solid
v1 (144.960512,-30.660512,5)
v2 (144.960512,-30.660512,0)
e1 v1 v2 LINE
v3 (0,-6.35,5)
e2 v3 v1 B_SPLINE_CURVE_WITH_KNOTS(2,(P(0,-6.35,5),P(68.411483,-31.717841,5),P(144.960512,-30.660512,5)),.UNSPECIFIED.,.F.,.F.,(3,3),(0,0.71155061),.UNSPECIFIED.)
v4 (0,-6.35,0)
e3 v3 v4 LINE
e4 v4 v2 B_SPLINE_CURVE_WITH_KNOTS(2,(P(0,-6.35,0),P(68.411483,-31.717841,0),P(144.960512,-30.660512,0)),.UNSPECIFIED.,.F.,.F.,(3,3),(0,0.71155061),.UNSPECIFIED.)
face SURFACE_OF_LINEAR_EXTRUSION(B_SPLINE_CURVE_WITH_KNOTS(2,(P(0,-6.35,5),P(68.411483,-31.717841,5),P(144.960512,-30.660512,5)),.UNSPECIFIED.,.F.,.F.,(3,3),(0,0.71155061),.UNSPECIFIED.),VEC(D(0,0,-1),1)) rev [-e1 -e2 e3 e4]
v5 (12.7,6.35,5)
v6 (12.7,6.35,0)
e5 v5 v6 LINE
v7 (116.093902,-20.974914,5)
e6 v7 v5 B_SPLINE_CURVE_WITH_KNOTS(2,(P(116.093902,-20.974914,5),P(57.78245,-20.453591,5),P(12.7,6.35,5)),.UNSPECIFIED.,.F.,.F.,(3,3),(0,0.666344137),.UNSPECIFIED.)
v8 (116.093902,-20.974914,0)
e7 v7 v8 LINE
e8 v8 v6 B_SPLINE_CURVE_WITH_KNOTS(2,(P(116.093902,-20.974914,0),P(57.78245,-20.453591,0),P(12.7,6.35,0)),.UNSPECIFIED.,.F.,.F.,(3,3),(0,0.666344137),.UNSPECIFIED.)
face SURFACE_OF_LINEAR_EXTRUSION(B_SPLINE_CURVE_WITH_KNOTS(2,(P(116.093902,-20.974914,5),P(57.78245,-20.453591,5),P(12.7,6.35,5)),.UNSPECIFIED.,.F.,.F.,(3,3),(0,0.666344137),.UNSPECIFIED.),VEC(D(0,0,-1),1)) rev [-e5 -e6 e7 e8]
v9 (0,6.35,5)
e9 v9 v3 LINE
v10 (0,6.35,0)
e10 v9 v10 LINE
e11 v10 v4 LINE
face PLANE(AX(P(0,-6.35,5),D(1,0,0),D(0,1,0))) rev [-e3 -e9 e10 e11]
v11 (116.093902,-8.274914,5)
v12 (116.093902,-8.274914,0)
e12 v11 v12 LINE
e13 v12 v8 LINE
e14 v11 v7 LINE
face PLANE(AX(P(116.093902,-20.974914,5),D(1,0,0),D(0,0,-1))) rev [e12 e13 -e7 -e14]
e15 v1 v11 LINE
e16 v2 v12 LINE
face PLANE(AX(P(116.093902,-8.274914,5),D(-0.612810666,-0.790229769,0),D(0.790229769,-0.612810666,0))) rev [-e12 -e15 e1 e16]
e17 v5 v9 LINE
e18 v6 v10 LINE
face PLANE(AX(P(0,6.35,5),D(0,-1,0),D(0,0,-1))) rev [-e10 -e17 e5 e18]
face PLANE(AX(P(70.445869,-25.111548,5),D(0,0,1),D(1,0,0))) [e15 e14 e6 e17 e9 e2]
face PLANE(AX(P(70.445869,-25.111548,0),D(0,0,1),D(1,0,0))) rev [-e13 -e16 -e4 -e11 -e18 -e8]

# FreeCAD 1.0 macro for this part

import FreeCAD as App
import Part
import Sketcher
Q = App.Units.Quantity

doc = App.newDocument("Part")
body = doc.addObject("PartDesign::Body", "Body")

sketch1 = body.newObject("Sketcher::SketchObject", "Sketch")
sketch1.AttachmentSupport = (doc.getObject("XY_Plane"), [""])
sketch1.MapMode = "FlatFace"
sketch1.addGeometry([
    Part.LineSegment(App.Vector(0, 6.35, 0), App.Vector(0, -6.35, 0)),
    Part.BSplineCurve([App.Vector(144.960512, -30.660512, 0), App.Vector(68.411483, -31.717841, 0), App.Vector(0, -6.35, 0)], [3, 3], [0, 0.71155061], False, 2, [1, 1, 1], False),
    Part.LineSegment(App.Vector(144.960512, -30.660512, 0), App.Vector(116.093902, -8.274914, 0)),
    Part.LineSegment(App.Vector(116.093902, -8.274914, 0), App.Vector(116.093902, -20.974914, 0)),
    Part.BSplineCurve([App.Vector(116.093902, -20.974914, 0), App.Vector(57.78245, -20.453591, 0), App.Vector(12.7, 6.35, 0)], [3, 3], [0, 0.666344137], False, 2, [1, 1, 1], False),
    Part.LineSegment(App.Vector(12.7, 6.35, 0), App.Vector(0, 6.35, 0)),
], False)
sketch1.addConstraint([
    Sketcher.Constraint("Block", 1),
    Sketcher.Constraint("Block", 4),
    Sketcher.Constraint("Coincident", 0, 2, 1, 2),
    Sketcher.Constraint("Coincident", 1, 1, 2, 1),
    Sketcher.Constraint("Coincident", 2, 2, 3, 1),
    Sketcher.Constraint("Coincident", 3, 2, 4, 1),
    Sketcher.Constraint("Coincident", 4, 2, 5, 1),
    Sketcher.Constraint("Coincident", 5, 2, 0, 1),
    Sketcher.Constraint("Vertical", 0),
    Sketcher.Constraint("Vertical", 3),
    Sketcher.Constraint("Horizontal", 5),
    Sketcher.Constraint("DistanceY", 3, 2, 3, 1, Q("12.7 mm")),
])
pad1 = body.newObject("PartDesign::Pad", "Pad")
pad1.Profile = sketch1
pad1.Length = 5

doc.recompute()
